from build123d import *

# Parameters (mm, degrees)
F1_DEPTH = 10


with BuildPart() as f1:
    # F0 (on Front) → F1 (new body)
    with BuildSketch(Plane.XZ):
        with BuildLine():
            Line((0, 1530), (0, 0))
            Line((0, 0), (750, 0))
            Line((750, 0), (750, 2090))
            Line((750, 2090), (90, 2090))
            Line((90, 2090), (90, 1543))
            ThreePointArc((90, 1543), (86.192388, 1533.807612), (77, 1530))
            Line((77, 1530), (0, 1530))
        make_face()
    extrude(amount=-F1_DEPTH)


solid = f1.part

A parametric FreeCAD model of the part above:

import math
import FreeCAD as App
import Part
import Sketcher
from FreeCAD import Vector

doc = App.newDocument("Part")
body = doc.addObject("PartDesign::Body", "Body")

sketch1 = body.newObject("Sketcher::SketchObject", "Sketch")
sketch1.AttachmentSupport = (doc.getObject("XZ_Plane"), [""])
sketch1.MapMode = "FlatFace"
sketch1.addGeometry([
    Part.LineSegment(Vector(0, 1530, 0), Vector(0, 0, 0)),
    Part.LineSegment(Vector(0, 0, 0), Vector(750, 0, 0)),
    Part.LineSegment(Vector(750, 0, 0), Vector(750, 2090, 0)),
    Part.LineSegment(Vector(750, 2090, 0), Vector(90, 2090, 0)),
    Part.LineSegment(Vector(90, 2090, 0), Vector(90, 1543, 0)),
    Part.ArcOfCircle(Part.Circle(Vector(76.999999, 1543.000001, 0), Vector(0, 0, 1), 13.000001), math.radians(-89.999998), math.radians(-0.000002)),
    Part.LineSegment(Vector(77, 1530, 0), Vector(0, 1530, 0)),
], False)
sketch1.addConstraint([
    Sketcher.Constraint("Coincident", 0, 2, 1, 1),
    Sketcher.Constraint("Coincident", 1, 2, 2, 1),
    Sketcher.Constraint("Coincident", 2, 2, 3, 1),
    Sketcher.Constraint("Coincident", 3, 2, 4, 1),
    Sketcher.Constraint("Tangent", 4, 2, 5, 2),
    Sketcher.Constraint("Tangent", 5, 1, 6, 1),
    Sketcher.Constraint("Coincident", 6, 2, 0, 1),
    Sketcher.Constraint("Vertical", 0),
    Sketcher.Constraint("Horizontal", 1),
    Sketcher.Constraint("Vertical", 2),
    Sketcher.Constraint("Horizontal", 3),
    Sketcher.Constraint("Vertical", 4),
    Sketcher.Constraint("Horizontal", 6),
    Sketcher.Constraint("Coincident", 0, 2, -1, 1),
    Sketcher.Constraint("Radius", 5, 13.000001),
    Sketcher.Constraint("DistanceX", 1, 1, 1, 2, 750.0),
    Sketcher.Constraint("DistanceX", 3, 2, 3, 1, 660.0),
    Sketcher.Constraint("DistanceY", 0, 2, 0, 1, 1530.0),
    Sketcher.Constraint("DistanceY", 2, 1, 2, 2, 2090.0),
])
pad1 = body.newObject("PartDesign::Pad", "Pad")
pad1.Profile = sketch1
pad1.Length = 10
pad1.Reversed = True

doc.recompute()
